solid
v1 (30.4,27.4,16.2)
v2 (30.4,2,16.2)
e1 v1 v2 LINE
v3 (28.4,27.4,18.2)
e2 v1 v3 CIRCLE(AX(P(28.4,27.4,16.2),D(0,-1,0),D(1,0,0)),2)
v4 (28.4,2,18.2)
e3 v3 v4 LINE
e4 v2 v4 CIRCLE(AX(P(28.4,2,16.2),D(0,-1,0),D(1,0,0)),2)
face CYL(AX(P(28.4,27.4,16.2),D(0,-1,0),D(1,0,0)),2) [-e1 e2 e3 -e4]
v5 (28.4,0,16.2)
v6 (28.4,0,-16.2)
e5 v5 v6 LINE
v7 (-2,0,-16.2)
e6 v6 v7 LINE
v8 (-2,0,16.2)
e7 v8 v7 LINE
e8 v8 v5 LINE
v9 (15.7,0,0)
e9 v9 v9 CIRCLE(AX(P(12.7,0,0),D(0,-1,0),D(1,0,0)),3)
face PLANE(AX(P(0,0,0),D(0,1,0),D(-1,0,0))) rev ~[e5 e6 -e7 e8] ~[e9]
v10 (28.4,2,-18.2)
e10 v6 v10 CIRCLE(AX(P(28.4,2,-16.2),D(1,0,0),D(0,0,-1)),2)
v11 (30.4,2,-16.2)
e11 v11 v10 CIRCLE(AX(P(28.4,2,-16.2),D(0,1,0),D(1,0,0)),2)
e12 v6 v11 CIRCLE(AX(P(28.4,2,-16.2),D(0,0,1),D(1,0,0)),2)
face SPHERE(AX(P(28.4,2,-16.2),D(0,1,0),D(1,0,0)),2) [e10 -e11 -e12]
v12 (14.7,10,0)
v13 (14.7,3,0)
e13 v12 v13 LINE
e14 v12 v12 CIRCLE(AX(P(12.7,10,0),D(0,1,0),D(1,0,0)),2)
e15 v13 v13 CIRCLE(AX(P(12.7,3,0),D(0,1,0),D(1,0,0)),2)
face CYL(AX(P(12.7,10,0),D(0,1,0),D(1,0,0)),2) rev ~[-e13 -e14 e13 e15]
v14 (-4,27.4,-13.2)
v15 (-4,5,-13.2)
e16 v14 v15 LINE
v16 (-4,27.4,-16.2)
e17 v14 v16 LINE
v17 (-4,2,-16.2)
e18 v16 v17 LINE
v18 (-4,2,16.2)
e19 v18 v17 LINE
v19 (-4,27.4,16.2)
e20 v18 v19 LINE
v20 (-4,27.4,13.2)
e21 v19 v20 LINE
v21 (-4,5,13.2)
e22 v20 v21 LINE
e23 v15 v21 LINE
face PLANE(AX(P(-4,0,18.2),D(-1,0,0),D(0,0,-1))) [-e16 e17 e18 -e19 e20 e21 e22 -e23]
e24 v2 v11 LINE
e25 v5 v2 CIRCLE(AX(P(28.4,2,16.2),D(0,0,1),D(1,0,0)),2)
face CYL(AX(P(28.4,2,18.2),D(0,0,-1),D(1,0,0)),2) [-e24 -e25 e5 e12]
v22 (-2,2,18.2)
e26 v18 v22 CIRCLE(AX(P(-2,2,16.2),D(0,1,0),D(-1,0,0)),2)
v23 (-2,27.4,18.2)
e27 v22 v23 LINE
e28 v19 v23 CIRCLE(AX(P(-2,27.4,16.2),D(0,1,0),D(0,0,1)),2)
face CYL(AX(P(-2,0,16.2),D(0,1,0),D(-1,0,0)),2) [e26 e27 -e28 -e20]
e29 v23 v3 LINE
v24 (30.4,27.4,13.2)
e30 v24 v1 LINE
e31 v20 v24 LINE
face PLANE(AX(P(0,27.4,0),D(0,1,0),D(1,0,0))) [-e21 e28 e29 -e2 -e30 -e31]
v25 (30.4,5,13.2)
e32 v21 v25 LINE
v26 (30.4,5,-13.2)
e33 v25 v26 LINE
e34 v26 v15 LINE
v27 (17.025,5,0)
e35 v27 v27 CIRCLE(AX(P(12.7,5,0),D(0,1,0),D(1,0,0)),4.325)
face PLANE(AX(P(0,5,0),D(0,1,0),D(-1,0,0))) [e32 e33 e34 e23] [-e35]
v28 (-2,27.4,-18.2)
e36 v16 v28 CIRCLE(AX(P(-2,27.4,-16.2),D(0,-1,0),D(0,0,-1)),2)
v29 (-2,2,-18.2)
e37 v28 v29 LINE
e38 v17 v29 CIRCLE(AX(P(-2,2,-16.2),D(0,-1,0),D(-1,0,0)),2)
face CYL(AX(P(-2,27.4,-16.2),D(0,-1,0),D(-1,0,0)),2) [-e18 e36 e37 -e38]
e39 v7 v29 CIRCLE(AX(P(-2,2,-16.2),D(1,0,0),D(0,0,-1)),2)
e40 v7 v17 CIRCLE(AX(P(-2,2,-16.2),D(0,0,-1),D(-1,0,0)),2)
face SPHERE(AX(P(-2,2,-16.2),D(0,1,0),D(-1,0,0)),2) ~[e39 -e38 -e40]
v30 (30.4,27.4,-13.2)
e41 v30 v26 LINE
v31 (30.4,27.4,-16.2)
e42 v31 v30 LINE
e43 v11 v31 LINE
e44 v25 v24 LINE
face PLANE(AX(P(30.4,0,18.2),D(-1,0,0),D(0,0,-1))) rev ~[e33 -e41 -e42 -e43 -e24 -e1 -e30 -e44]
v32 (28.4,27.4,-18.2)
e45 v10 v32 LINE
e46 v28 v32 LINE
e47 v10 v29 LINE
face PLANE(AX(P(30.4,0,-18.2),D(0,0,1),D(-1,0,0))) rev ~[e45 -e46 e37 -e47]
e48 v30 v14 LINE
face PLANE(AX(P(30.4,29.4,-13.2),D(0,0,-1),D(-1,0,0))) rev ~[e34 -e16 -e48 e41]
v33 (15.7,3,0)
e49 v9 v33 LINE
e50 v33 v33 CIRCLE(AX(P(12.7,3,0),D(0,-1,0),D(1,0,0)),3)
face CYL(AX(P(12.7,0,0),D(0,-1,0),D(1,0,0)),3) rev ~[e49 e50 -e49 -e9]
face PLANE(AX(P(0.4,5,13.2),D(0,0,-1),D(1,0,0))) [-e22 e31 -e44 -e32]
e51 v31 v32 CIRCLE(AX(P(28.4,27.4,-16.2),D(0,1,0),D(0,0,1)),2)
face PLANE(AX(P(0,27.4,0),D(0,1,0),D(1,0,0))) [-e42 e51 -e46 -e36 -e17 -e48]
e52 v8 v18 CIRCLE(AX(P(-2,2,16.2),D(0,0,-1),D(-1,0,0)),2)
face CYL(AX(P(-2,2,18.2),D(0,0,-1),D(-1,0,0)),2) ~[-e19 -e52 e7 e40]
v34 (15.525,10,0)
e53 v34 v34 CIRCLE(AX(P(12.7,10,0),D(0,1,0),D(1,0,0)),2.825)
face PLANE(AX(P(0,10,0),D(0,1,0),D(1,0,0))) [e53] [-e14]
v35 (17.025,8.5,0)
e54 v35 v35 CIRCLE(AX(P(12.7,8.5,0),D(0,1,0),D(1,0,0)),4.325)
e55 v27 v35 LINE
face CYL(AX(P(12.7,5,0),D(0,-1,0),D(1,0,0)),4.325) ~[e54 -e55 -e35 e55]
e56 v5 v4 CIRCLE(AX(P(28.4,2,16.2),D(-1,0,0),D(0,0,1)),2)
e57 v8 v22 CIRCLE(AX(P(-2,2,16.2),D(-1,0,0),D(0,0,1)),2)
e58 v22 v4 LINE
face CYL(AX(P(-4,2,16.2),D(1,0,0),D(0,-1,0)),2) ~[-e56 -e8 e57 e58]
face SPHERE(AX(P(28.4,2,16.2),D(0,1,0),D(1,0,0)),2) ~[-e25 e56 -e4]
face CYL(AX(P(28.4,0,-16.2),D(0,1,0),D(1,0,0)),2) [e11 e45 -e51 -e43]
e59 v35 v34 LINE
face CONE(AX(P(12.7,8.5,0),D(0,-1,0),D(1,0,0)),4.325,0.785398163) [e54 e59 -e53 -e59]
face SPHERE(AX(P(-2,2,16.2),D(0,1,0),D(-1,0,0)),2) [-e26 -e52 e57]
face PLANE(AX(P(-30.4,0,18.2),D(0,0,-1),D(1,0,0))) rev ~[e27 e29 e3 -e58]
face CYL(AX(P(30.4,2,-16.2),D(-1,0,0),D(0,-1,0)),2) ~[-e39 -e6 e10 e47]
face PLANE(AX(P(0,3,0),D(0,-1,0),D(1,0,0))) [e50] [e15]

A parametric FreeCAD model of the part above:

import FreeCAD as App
import Part
import Sketcher
from FreeCAD import Vector
Q = App.Units.Quantity


def edges_at(feature, points):
    """Names of the edges that pass closest to the given points."""
    edges = feature.Shape.Edges
    near = lambda p: min(range(len(edges)), key=lambda i: edges[i].distToShape(Part.Vertex(*p))[0])
    return sorted({f"Edge{near(p) + 1}" for p in points})

doc = App.newDocument("Part")
body = doc.addObject("PartDesign::Body", "Body")

sketch1 = body.newObject("Sketcher::SketchObject", "Sketch")
sketch1.AttachmentSupport = (doc.getObject("XZ_Plane"), [""])
sketch1.MapMode = "FlatFace"
sketch1.addGeometry([
    Part.LineSegment(Vector(-30, -18, 0), Vector(-30, 18, 0)),
    Part.LineSegment(Vector(-30, 18, 0), Vector(30, 18, 0)),
    Part.LineSegment(Vector(30, 18, 0), Vector(30, -18, 0)),
    Part.LineSegment(Vector(30, -18, 0), Vector(-30, -18, 0)),
], False)
sketch1.addConstraint([
    Sketcher.Constraint("Coincident", 0, 2, 1, 1),
    Sketcher.Constraint("Coincident", 1, 2, 2, 1),
    Sketcher.Constraint("Coincident", 2, 2, 3, 1),
    Sketcher.Constraint("Coincident", 3, 2, 0, 1),
    Sketcher.Constraint("Vertical", 0),
    Sketcher.Constraint("Horizontal", 1),
    Sketcher.Constraint("Vertical", 2),
    Sketcher.Constraint("Horizontal", 3),
    Sketcher.Constraint("Symmetric", 0, 2, 2, 2, -1, 1),
    Sketcher.Constraint("DistanceX", 1, 1, 1, 2, Q("60.8 mm")),
    Sketcher.Constraint("DistanceY", 0, 1, 0, 2, Q("36.4 mm")),
])
pad1 = body.newObject("PartDesign::Pad", "Pad")
pad1.Profile = sketch1
pad1.Length = 5
pad1.Reversed = True

sketch2 = body.newObject("Sketcher::SketchObject", "Sketch001")
sketch2.AttachmentSupport = (doc.getObject("XZ_Plane"), [""])
sketch2.MapMode = "FlatFace"
sketch2.AttachmentOffset = App.Placement(Vector(0, 0, -5), App.Rotation())
sketch2.addGeometry([
    Part.LineSegment(Vector(0, -13, 0), Vector(0, -18, 0)),
    Part.LineSegment(Vector(0, -18, 0), Vector(-30, -18, 0)),
    Part.LineSegment(Vector(-30, -18, 0), Vector(-30, -13, 0)),
    Part.LineSegment(Vector(-30, -13, 0), Vector(0, -13, 0)),
    Part.LineSegment(Vector(30, 18, 0), Vector(30, 13, 0)),
    Part.LineSegment(Vector(30, 13, 0), Vector(0, 13, 0)),
    Part.LineSegment(Vector(0, 13, 0), Vector(0, 18, 0)),
    Part.LineSegment(Vector(0, 18, 0), Vector(30, 18, 0)),
], False)
sketch2.addConstraint([
    Sketcher.Constraint("Coincident", 0, 2, 1, 1),
    Sketcher.Constraint("Coincident", 1, 2, 2, 1),
    Sketcher.Constraint("Coincident", 2, 2, 3, 1),
    Sketcher.Constraint("Coincident", 3, 2, 0, 1),
    Sketcher.Constraint("Coincident", 4, 2, 5, 1),
    Sketcher.Constraint("Coincident", 5, 2, 6, 1),
    Sketcher.Constraint("Coincident", 6, 2, 7, 1),
    Sketcher.Constraint("Coincident", 7, 2, 4, 1),
    Sketcher.Constraint("Vertical", 0),
    Sketcher.Constraint("Horizontal", 1),
    Sketcher.Constraint("Vertical", 2),
    Sketcher.Constraint("Horizontal", 3),
    Sketcher.Constraint("Vertical", 4),
    Sketcher.Constraint("Horizontal", 5),
    Sketcher.Constraint("Vertical", 6),
    Sketcher.Constraint("Horizontal", 7),
    Sketcher.Constraint("Symmetric", 2, 2, 4, 2, -1, 1),
    Sketcher.Constraint("Symmetric", 0, 2, 6, 2, -1, 1),
    Sketcher.Constraint("DistanceX", 1, 2, 1, 1, Q("30 mm")),
    Sketcher.Constraint("DistanceY", 0, 2, 0, 1, Q("5 mm")),
    Sketcher.Constraint("DistanceX", 0, 2, -1, 1, Q("0.4 mm")),
    Sketcher.Constraint("DistanceY", 0, 2, -1, 1, Q("18.2 mm")),
])
pad2 = body.newObject("PartDesign::Pad", "Pad001")
pad2.Profile = sketch2
pad2.Length = 24.4
pad2.Reversed = True

sketch3 = body.newObject("Sketcher::SketchObject", "Sketch002")
sketch3.AttachmentSupport = (doc.getObject("XZ_Plane"), [""])
sketch3.MapMode = "FlatFace"
sketch3.AttachmentOffset = App.Placement(Vector(0, 0, -5), App.Rotation())
sketch3.addGeometry([
    Part.Circle(Vector(12.7, 0, 0), Vector(0, 0, 1), 4.3),
    Part.Circle(Vector(-12.7, 0, 0), Vector(0, 0, 1), 4.3),
], False)
sketch3.addConstraint([
    Sketcher.Constraint("Equal", 0, 1),
    Sketcher.Constraint("Symmetric", 0, 3, 1, 3, -1, 1),
    Sketcher.Constraint("PointOnObject", 0, 3, -1),
    Sketcher.Constraint("Diameter", 0, Q("8.65 mm")),
    Sketcher.Constraint("DistanceX", -1, 1, 0, 3, Q("12.7 mm")),
])
pad3 = body.newObject("PartDesign::Pad", "Pad002")
pad3.Profile = sketch3
pad3.Length = 5
pad3.Reversed = True

sketch4 = body.newObject("Sketcher::SketchObject", "Sketch003")
sketch4.AttachmentSupport = (doc.getObject("XZ_Plane"), [""])
sketch4.MapMode = "FlatFace"
sketch4.AttachmentOffset = App.Placement(Vector(0, 0, -10), App.Rotation())
sketch4.addGeometry([
    Part.Circle(Vector(-12.7, 0, 0), Vector(0, 0, 1), 2),
    Part.Circle(Vector(12.7, 0, 0), Vector(0, 0, 1), 2),
], False)
sketch4.addConstraint([
    Sketcher.Constraint("Equal", 0, 1),
    Sketcher.Constraint("Symmetric", 0, 3, 1, 3, -1, 1),
    Sketcher.Constraint("PointOnObject", 0, 3, -1),
    Sketcher.Constraint("Diameter", 0, Q("4 mm")),
    Sketcher.Constraint("DistanceX", 0, 3, -1, 1, Q("12.7 mm")),
])
pocket1 = body.newObject("PartDesign::Pocket", "Pocket")
pocket1.Profile = sketch4
pocket1.Length = 15
pocket1.Reversed = True

sketch5 = body.newObject("Sketcher::SketchObject", "Sketch004")
sketch5.AttachmentSupport = (doc.getObject("XZ_Plane"), [""])
sketch5.MapMode = "FlatFace"
sketch5.addGeometry([
    Part.Circle(Vector(12.7, 0, 0), Vector(0, 0, 1), 3),
    Part.Circle(Vector(-12.7, 0, 0), Vector(0, 0, 1), 3),
], False)
sketch5.addConstraint([
    Sketcher.Constraint("Equal", 0, 1),
    Sketcher.Constraint("Symmetric", 0, 3, 1, 3, -1, 1),
    Sketcher.Constraint("PointOnObject", 0, 3, -1),
    Sketcher.Constraint("Diameter", 0, Q("6 mm")),
    Sketcher.Constraint("DistanceX", -1, 1, 0, 3, Q("12.7 mm")),
])
pocket2 = body.newObject("PartDesign::Pocket", "Pocket001")
pocket2.Profile = sketch5
pocket2.Length = 3
doc.recompute()

chamfer = body.newObject("PartDesign::Chamfer", "Chamfer")
chamfer.Base = (pocket2, edges_at(pocket2, [(8.375, 10, 0), (-17.025, 10, 0)]))
chamfer.Size = 1.5

sketch6 = body.newObject("Sketcher::SketchObject", "Sketch005")
sketch6.AttachmentSupport = (doc.getObject("XZ_Plane"), [""])
sketch6.MapMode = "FlatFace"
sketch6.addGeometry([
    Part.LineSegment(Vector(2, -18, 0), Vector(-4, -18, 0)),
    Part.LineSegment(Vector(-4, -18, 0), Vector(-4, 18, 0)),
    Part.LineSegment(Vector(-4, 18, 0), Vector(2, 18, 0)),
    Part.LineSegment(Vector(2, 18, 0), Vector(2, 27, 0)),
    Part.LineSegment(Vector(2, 27, 0), Vector(-35, 27, 0)),
    Part.LineSegment(Vector(-35, 27, 0), Vector(-35, -37, 0)),
    Part.LineSegment(Vector(-35, -37, 0), Vector(2, -37, 0)),
    Part.LineSegment(Vector(2, -37, 0), Vector(2, -18, 0)),
], False)
sketch6.addConstraint([
    Sketcher.Constraint("Coincident", 0, 2, 1, 1),
    Sketcher.Constraint("Coincident", 1, 2, 2, 1),
    Sketcher.Constraint("Coincident", 2, 2, 3, 1),
    Sketcher.Constraint("Coincident", 3, 2, 4, 1),
    Sketcher.Constraint("Coincident", 4, 2, 5, 1),
    Sketcher.Constraint("Coincident", 5, 2, 6, 1),
    Sketcher.Constraint("Coincident", 6, 2, 7, 1),
    Sketcher.Constraint("Coincident", 7, 2, 0, 1),
    Sketcher.Constraint("Horizontal", 0),
    Sketcher.Constraint("Vertical", 1),
    Sketcher.Constraint("Horizontal", 2),
    Sketcher.Constraint("Vertical", 3),
    Sketcher.Constraint("Horizontal", 4),
    Sketcher.Constraint("Vertical", 5),
    Sketcher.Constraint("Horizontal", 6),
    Sketcher.Constraint("Vertical", 7),
    Sketcher.Constraint("Symmetric", 2, 2, 7, 2, -1),
    Sketcher.Constraint("DistanceY", 1, 1, 1, 2, Q("36.4 mm")),
    Sketcher.Constraint("DistanceY", 5, 2, 5, 1, Q("63.5 mm")),
    Sketcher.Constraint("DistanceX", 0, 2, -1, 1, Q("4 mm")),
    Sketcher.Constraint("DistanceX", 0, 2, 0, 1, Q("5.5875 mm")),
    Sketcher.Constraint("DistanceX", 4, 2, 4, 1, Q("36.5125 mm")),
    Sketcher.Constraint("DistanceY", 3, 1, 3, 2, Q("8.7875 mm")),
])
pocket3 = body.newObject("PartDesign::Pocket", "Pocket002")
pocket3.Profile = sketch6
pocket3.Length = 50

sketch7 = body.newObject("Sketcher::SketchObject", "Sketch006")
sketch7.AttachmentSupport = (doc.getObject("XZ_Plane"), [""])
sketch7.MapMode = "FlatFace"
sketch7.AttachmentOffset = App.Placement(Vector(0, 0, -29.4), App.Rotation())
sketch7.addGeometry([
    Part.LineSegment(Vector(30, -13, 0), Vector(30, -18, 0)),
    Part.LineSegment(Vector(30, -18, 0), Vector(-4, -18, 0)),
    Part.LineSegment(Vector(-4, -18, 0), Vector(-4, -13, 0)),
    Part.LineSegment(Vector(-4, -13, 0), Vector(30, -13, 0)),
    Part.LineSegment(Vector(30, 18, 0), Vector(30, 13, 0)),
    Part.LineSegment(Vector(30, 13, 0), Vector(-4, 13, 0)),
    Part.LineSegment(Vector(-4, 13, 0), Vector(-4, 18, 0)),
    Part.LineSegment(Vector(-4, 18, 0), Vector(30, 18, 0)),
], False)
sketch7.addConstraint([
    Sketcher.Constraint("Coincident", 0, 2, 1, 1),
    Sketcher.Constraint("Coincident", 1, 2, 2, 1),
    Sketcher.Constraint("Coincident", 2, 2, 3, 1),
    Sketcher.Constraint("Coincident", 3, 2, 0, 1),
    Sketcher.Constraint("Coincident", 4, 2, 5, 1),
    Sketcher.Constraint("Coincident", 5, 2, 6, 1),
    Sketcher.Constraint("Coincident", 6, 2, 7, 1),
    Sketcher.Constraint("Coincident", 7, 2, 4, 1),
    Sketcher.Constraint("Vertical", 0),
    Sketcher.Constraint("Horizontal", 1),
    Sketcher.Constraint("Vertical", 2),
    Sketcher.Constraint("Horizontal", 3),
    Sketcher.Constraint("Vertical", 4),
    Sketcher.Constraint("Horizontal", 5),
    Sketcher.Constraint("Vertical", 6),
    Sketcher.Constraint("Horizontal", 7),
    Sketcher.Constraint("Symmetric", 3, 2, 4, 2, -1),
    Sketcher.Constraint("Symmetric", 1, 2, 6, 2, -1),
    Sketcher.Constraint("DistanceY", 0, 2, 0, 1, Q("5 mm")),
    Sketcher.Constraint("DistanceX", 1, 2, 1, 1, Q("34.4 mm")),
    Sketcher.Constraint("DistanceX", 1, 2, -1, 1, Q("4 mm")),
    Sketcher.Constraint("DistanceY", 0, 2, -1, 1, Q("18.2 mm")),
])
pad4 = body.newObject("PartDesign::Pad", "Pad003")
pad4.Profile = sketch7
pad4.Length = 27

sketch8 = body.newObject("Sketcher::SketchObject", "Sketch007")
sketch8.AttachmentSupport = (doc.getObject("XZ_Plane"), [""])
sketch8.MapMode = "FlatFace"
sketch8.AttachmentOffset = App.Placement(Vector(0, 0, -29.4), App.Rotation())
sketch8.addGeometry([
    Part.LineSegment(Vector(-4, -18, 0), Vector(-4, -13, 0)),
    Part.LineSegment(Vector(-4, -13, 0), Vector(30, -13, 0)),
    Part.LineSegment(Vector(30, -13, 0), Vector(30, -18, 0)),
    Part.LineSegment(Vector(30, -18, 0), Vector(-4, -18, 0)),
    Part.LineSegment(Vector(-4, 13, 0), Vector(-4, 18, 0)),
    Part.LineSegment(Vector(-4, 18, 0), Vector(30, 18, 0)),
    Part.LineSegment(Vector(30, 18, 0), Vector(30, 13, 0)),
    Part.LineSegment(Vector(30, 13, 0), Vector(-4, 13, 0)),
], False)
sketch8.addConstraint([
    Sketcher.Constraint("Coincident", 0, 2, 1, 1),
    Sketcher.Constraint("Coincident", 1, 2, 2, 1),
    Sketcher.Constraint("Coincident", 2, 2, 3, 1),
    Sketcher.Constraint("Coincident", 3, 2, 0, 1),
    Sketcher.Constraint("Coincident", 4, 2, 5, 1),
    Sketcher.Constraint("Coincident", 5, 2, 6, 1),
    Sketcher.Constraint("Coincident", 6, 2, 7, 1),
    Sketcher.Constraint("Coincident", 7, 2, 4, 1),
    Sketcher.Constraint("Vertical", 0),
    Sketcher.Constraint("Horizontal", 1),
    Sketcher.Constraint("Vertical", 2),
    Sketcher.Constraint("Horizontal", 3),
    Sketcher.Constraint("Vertical", 4),
    Sketcher.Constraint("Horizontal", 5),
    Sketcher.Constraint("Vertical", 6),
    Sketcher.Constraint("Horizontal", 7),
    Sketcher.Constraint("Symmetric", 3, 2, 4, 2, -1),
    Sketcher.Constraint("Symmetric", 1, 2, 6, 2, -1),
    Sketcher.Constraint("DistanceY", 0, 1, 0, 2, Q("5 mm")),
    Sketcher.Constraint("DistanceX", 1, 1, 1, 2, Q("34.4 mm")),
    Sketcher.Constraint("DistanceX", 0, 2, -1, 1, Q("4 mm")),
    Sketcher.Constraint("DistanceY", 0, 2, -1, 1, Q("13.2 mm")),
])
pocket4 = body.newObject("PartDesign::Pocket", "Pocket003")
pocket4.Profile = sketch8
pocket4.Length = 2
pocket4.Reversed = True
doc.recompute()

fillet = body.newObject("PartDesign::Fillet", "Fillet")
fillet.Base = (pocket4, edges_at(pocket4, [
    (30.4, 13.7, -18.2),
    (-4, 13.7, 18.2),
    (-4, 13.7, -18.2),
    (30.4, 13.7, 18.2),
    (30.4, 0, 0),
    (-4, 0, 0),
    (13.2, 0, 18.2),
    (13.2, 0, -18.2),
]))
fillet.Radius = 2

doc.recompute()
